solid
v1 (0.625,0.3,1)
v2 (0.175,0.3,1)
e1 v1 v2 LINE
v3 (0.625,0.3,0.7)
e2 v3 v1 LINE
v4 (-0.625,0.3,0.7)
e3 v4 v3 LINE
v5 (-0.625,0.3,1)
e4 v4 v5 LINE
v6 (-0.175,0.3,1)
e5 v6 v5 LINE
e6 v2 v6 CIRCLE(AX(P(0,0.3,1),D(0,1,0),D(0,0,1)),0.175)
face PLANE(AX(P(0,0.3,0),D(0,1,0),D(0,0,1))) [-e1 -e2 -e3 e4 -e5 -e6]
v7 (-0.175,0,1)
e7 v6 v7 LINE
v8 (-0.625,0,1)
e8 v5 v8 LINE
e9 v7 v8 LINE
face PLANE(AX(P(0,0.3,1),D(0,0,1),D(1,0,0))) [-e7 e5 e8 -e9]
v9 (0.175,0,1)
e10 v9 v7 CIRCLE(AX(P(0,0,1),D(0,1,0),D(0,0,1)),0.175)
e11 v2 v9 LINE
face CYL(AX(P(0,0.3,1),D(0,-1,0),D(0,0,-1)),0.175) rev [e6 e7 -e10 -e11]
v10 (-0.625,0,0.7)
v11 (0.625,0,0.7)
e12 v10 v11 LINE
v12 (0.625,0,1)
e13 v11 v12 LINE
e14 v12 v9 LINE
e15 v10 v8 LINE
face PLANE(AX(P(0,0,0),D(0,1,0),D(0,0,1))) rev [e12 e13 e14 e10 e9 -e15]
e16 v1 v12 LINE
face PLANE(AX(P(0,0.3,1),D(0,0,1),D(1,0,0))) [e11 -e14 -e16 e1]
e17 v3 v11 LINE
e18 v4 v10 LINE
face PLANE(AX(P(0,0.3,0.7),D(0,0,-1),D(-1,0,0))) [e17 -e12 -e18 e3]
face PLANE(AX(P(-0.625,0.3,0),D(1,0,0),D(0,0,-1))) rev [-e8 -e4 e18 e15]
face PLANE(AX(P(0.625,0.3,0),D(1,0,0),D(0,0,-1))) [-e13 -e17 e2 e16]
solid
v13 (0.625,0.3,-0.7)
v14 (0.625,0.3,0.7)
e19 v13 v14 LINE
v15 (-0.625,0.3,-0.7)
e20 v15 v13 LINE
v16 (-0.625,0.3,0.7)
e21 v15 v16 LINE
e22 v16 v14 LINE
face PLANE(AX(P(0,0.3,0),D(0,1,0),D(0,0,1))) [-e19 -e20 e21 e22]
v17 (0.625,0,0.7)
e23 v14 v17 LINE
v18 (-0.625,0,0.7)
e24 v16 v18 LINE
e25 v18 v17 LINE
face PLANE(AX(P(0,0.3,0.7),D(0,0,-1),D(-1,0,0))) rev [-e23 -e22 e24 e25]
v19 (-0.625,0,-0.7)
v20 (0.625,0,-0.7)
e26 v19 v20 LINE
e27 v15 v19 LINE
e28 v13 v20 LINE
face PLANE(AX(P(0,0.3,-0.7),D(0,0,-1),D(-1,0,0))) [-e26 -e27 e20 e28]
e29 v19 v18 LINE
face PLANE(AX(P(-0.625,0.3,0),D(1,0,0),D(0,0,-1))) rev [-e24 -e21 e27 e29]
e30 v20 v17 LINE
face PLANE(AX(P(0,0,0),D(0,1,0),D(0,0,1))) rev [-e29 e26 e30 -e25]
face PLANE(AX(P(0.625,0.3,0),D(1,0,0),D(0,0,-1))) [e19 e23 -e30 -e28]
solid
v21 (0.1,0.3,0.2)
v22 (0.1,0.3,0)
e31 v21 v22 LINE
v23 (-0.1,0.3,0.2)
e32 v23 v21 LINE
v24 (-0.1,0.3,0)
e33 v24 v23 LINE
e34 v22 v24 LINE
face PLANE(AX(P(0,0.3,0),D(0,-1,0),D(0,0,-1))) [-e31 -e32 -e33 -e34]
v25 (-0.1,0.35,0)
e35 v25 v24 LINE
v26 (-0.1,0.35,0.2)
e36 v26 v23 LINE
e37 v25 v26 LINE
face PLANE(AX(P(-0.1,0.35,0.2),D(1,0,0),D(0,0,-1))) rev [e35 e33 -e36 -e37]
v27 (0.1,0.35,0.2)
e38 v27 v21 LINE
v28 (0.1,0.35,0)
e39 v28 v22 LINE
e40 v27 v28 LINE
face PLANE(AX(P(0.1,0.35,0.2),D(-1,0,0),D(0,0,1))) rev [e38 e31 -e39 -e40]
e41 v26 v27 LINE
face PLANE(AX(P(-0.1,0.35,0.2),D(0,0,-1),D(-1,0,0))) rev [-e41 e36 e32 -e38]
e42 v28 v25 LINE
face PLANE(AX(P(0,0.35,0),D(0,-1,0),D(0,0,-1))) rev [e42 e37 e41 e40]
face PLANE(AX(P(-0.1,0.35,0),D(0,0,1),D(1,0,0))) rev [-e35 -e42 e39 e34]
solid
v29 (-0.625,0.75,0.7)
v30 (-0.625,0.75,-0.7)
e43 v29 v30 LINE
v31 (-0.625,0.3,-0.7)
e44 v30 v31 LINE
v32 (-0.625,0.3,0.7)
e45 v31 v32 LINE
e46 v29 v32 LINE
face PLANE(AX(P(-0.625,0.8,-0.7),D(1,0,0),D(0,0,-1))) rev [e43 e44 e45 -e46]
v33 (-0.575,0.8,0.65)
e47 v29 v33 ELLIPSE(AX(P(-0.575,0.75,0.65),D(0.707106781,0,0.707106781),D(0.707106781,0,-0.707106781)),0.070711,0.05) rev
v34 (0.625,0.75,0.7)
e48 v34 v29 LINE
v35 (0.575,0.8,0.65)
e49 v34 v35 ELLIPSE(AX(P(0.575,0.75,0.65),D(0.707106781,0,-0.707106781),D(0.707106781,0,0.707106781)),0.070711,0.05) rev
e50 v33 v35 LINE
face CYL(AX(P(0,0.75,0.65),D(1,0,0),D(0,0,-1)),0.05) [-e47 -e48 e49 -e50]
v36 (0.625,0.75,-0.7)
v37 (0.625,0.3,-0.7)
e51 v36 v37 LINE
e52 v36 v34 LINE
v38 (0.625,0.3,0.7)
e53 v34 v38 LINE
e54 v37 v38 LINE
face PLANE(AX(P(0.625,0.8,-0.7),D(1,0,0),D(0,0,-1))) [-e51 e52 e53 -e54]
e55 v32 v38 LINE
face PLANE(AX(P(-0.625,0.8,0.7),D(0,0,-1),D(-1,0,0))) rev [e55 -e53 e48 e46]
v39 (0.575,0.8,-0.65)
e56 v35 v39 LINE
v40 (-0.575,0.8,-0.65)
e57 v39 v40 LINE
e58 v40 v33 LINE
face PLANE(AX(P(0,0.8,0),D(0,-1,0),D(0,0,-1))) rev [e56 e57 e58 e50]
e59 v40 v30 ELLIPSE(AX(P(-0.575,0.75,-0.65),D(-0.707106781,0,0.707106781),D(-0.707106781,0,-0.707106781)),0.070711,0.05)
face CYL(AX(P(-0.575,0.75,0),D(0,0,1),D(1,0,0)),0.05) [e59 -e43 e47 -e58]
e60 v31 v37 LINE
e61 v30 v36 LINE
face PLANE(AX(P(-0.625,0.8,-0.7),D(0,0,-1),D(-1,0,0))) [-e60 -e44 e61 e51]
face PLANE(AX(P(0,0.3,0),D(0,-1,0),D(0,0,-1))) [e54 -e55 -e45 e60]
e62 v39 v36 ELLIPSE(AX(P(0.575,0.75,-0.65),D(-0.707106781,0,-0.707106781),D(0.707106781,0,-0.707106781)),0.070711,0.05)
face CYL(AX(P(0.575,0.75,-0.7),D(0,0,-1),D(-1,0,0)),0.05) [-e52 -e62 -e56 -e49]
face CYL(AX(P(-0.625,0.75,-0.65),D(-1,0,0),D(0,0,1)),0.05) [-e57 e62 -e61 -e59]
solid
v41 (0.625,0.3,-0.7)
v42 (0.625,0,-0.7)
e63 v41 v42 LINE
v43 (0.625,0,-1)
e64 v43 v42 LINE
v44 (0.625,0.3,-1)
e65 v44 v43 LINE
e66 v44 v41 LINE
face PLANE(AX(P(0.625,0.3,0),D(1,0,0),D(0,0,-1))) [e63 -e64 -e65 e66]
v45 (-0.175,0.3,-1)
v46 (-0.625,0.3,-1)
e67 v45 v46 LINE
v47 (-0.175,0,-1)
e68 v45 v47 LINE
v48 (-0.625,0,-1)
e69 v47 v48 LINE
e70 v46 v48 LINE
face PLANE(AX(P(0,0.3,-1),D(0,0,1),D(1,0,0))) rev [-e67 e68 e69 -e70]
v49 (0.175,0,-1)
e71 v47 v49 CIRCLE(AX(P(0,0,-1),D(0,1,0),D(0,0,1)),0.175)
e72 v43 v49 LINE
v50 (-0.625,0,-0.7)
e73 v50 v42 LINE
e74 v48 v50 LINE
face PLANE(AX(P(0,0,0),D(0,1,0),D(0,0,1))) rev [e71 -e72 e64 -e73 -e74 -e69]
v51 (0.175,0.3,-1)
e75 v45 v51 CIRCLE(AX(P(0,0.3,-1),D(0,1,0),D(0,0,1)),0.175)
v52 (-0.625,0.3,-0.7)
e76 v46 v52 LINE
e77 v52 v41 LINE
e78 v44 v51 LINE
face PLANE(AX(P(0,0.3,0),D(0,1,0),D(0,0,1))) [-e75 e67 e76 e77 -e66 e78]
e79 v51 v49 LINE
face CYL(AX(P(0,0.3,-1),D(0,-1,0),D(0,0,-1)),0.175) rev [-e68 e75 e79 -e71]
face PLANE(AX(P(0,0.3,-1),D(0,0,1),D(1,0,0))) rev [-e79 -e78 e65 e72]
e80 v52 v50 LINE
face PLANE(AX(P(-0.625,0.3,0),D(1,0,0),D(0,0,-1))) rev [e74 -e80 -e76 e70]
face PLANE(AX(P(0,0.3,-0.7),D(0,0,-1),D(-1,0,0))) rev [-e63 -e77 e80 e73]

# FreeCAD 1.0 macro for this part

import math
import FreeCAD as App
import Part
import Sketcher

V = App.Vector


def edges_at(feature, points):
    """Names of the edges that pass closest to the given points."""
    edges = feature.Shape.Edges
    near = lambda p: min(range(len(edges)), key=lambda i: edges[i].distToShape(Part.Vertex(*p))[0])
    return sorted({f"Edge{near(p) + 1}" for p in points})

doc = App.newDocument("Part")
body = doc.addObject("PartDesign::Body", "Body")

# Sketch on XZ plane
sketch1 = doc.addObject("Sketcher::SketchObject", "Sketch")
body.addObject(sketch1)
sketch1.AttachmentSupport = (doc.XZ_Plane, [""])
sketch1.MapMode = "FlatFace"
sketch1.addGeometry([
    Part.LineSegment(V(-0.625, -1, 0), V(-0.625, -0.7, 0)),  # 0
    Part.LineSegment(V(-0.625, -0.7, 0), V(0.625, -0.7, 0)),  # 1
    Part.LineSegment(V(0.625, -0.7, 0), V(0.625, -1, 0)),  # 2
    Part.LineSegment(V(0.625, -1, 0), V(0.175, -1, 0)),  # 3
    Part.ArcOfCircle(Part.Circle(V(0, -1, 0), V(0, 0, 1), 0.175), math.radians(0), math.radians(180)),  # 4
    Part.LineSegment(V(-0.175, -1, 0), V(-0.625, -1, 0)),  # 5
], False)
sketch1.addConstraint([
    Sketcher.Constraint("Coincident", 0, 2, 1, 1),
    Sketcher.Constraint("Coincident", 1, 2, 2, 1),
    Sketcher.Constraint("Coincident", 2, 2, 3, 1),
    Sketcher.Constraint("Coincident", 3, 2, 4, 1),
    Sketcher.Constraint("Coincident", 4, 2, 5, 1),
    Sketcher.Constraint("Coincident", 5, 2, 0, 1),
    Sketcher.Constraint("Vertical", 0),
    Sketcher.Constraint("Horizontal", 1),
    Sketcher.Constraint("Vertical", 2),
    Sketcher.Constraint("Horizontal", 3),
    Sketcher.Constraint("Horizontal", 5),
    Sketcher.Constraint("Symmetric", 3, 2, 4, 2, -2),
    Sketcher.Constraint("Horizontal", 4, 3, 2, 2),
    Sketcher.Constraint("Equal", 3, 5),
    Sketcher.Constraint("DistanceY", 0, 1, 0, 2, 0.3),
    Sketcher.Constraint("DistanceY", 4, 3, -1, 1, 1.0),
    Sketcher.Constraint("Radius", 4, 0.175),
    Sketcher.Constraint("DistanceX", 1, 1, 1, 2, 1.25),
])
pad1 = doc.addObject("PartDesign::Pad", "Pad")
body.addObject(pad1)
pad1.Profile = sketch1
pad1.Length = 0.3
pad1.Reversed = True
body2 = doc.addObject("PartDesign::Body", "Body001")

# Sketch on XZ plane
sketch2 = doc.addObject("Sketcher::SketchObject", "Sketch001")
body2.addObject(sketch2)
sketch2.AttachmentSupport = (doc.getObject("XZ_Plane001"), [""])
sketch2.MapMode = "FlatFace"
sketch2.addGeometry([
    Part.LineSegment(V(0.625, 0.7, 0), V(-0.625, 0.7, 0)),  # 0
    Part.LineSegment(V(-0.625, 0.7, 0), V(-0.625, 1, 0)),  # 1
    Part.LineSegment(V(-0.625, 1, 0), V(-0.175, 1, 0)),  # 2
    Part.ArcOfCircle(Part.Circle(V(0, 1, 0), V(0, 0, 1), 0.175), math.radians(180), math.radians(360)),  # 3
    Part.LineSegment(V(0.175, 1, 0), V(0.625, 1, 0)),  # 4
    Part.LineSegment(V(0.625, 1, 0), V(0.625, 0.7, 0)),  # 5
], False)
sketch2.addConstraint([
    Sketcher.Constraint("Coincident", 0, 2, 1, 1),
    Sketcher.Constraint("Coincident", 1, 2, 2, 1),
    Sketcher.Constraint("Coincident", 2, 2, 3, 1),
    Sketcher.Constraint("Coincident", 3, 2, 4, 1),
    Sketcher.Constraint("Coincident", 4, 2, 5, 1),
    Sketcher.Constraint("Coincident", 5, 2, 0, 1),
    Sketcher.Constraint("Horizontal", 0),
    Sketcher.Constraint("Vertical", 1),
    Sketcher.Constraint("Horizontal", 2),
    Sketcher.Constraint("Horizontal", 4),
    Sketcher.Constraint("Vertical", 5),
    Sketcher.Constraint("Symmetric", 2, 2, 3, 2, -2),
    Sketcher.Constraint("Horizontal", 3, 3, 1, 2),
    Sketcher.Constraint("Equal", 2, 4),
    Sketcher.Constraint("DistanceY", 1, 1, 1, 2, 0.3),
    Sketcher.Constraint("DistanceY", -1, 1, 3, 3, 1.0),
    Sketcher.Constraint("Radius", 3, 0.175),
    Sketcher.Constraint("DistanceX", 0, 2, 0, 1, 1.25),
])
pad2 = doc.addObject("PartDesign::Pad", "Pad001")
body2.addObject(pad2)
pad2.Profile = sketch2
pad2.Length = 0.3
pad2.Reversed = True
body3 = doc.addObject("PartDesign::Body", "Body002")

# Sketch on XZ plane
sketch3 = doc.addObject("Sketcher::SketchObject", "Sketch002")
body3.addObject(sketch3)
sketch3.AttachmentSupport = (doc.getObject("XZ_Plane002"), [""])
sketch3.MapMode = "FlatFace"
sketch3.addGeometry([
    Part.LineSegment(V(-0.625, -0.7, 0), V(-0.625, 0.7, 0)),
    Part.LineSegment(V(-0.625, 0.7, 0), V(0.625, 0.7, 0)),
    Part.LineSegment(V(0.625, 0.7, 0), V(0.625, -0.7, 0)),
    Part.LineSegment(V(0.625, -0.7, 0), V(-0.625, -0.7, 0)),
], False)
sketch3.addConstraint([
    Sketcher.Constraint("Coincident", 0, 2, 1, 1),
    Sketcher.Constraint("Coincident", 1, 2, 2, 1),
    Sketcher.Constraint("Coincident", 2, 2, 3, 1),
    Sketcher.Constraint("Coincident", 3, 2, 0, 1),
    Sketcher.Constraint("Vertical", 0),
    Sketcher.Constraint("Horizontal", 1),
    Sketcher.Constraint("Vertical", 2),
    Sketcher.Constraint("Horizontal", 3),
    Sketcher.Constraint("Symmetric", 0, 2, 2, 2, -1, 1),
    Sketcher.Constraint("DistanceY", 0, 1, 0, 2, 1.4),
    Sketcher.Constraint("DistanceX", 1, 1, 1, 2, 1.25),
])
pad3 = doc.addObject("PartDesign::Pad", "Pad002")
body3.addObject(pad3)
pad3.Profile = sketch3
pad3.Length = 0.3
pad3.Reversed = True
body4 = doc.addObject("PartDesign::Body", "Body003")

# Sketch on XZ plane
sketch4 = doc.addObject("Sketcher::SketchObject", "Sketch003")
body4.addObject(sketch4)
sketch4.AttachmentSupport = (doc.getObject("XZ_Plane003"), [""])
sketch4.MapMode = "FlatFace"
sketch4.AttachmentOffset = App.Placement(V(0, 0, -0.3), App.Rotation())
sketch4.addGeometry([
    Part.LineSegment(V(-0.625, -0.7, 0), V(-0.625, 0.7, 0)),
    Part.LineSegment(V(-0.625, 0.7, 0), V(0.625, 0.7, 0)),
    Part.LineSegment(V(0.625, 0.7, 0), V(0.625, -0.7, 0)),
    Part.LineSegment(V(0.625, -0.7, 0), V(-0.625, -0.7, 0)),
], False)
sketch4.addConstraint([
    Sketcher.Constraint("Coincident", 0, 2, 1, 1),
    Sketcher.Constraint("Coincident", 1, 2, 2, 1),
    Sketcher.Constraint("Coincident", 2, 2, 3, 1),
    Sketcher.Constraint("Coincident", 3, 2, 0, 1),
    Sketcher.Constraint("Vertical", 0),
    Sketcher.Constraint("Horizontal", 1),
    Sketcher.Constraint("Vertical", 2),
    Sketcher.Constraint("Horizontal", 3),
    Sketcher.Constraint("Symmetric", 0, 2, 2, 2, -1, 1),
    Sketcher.Constraint("DistanceY", 0, 1, 0, 2, 1.4),
    Sketcher.Constraint("DistanceX", 1, 1, 1, 2, 1.25),
])
pad4 = doc.addObject("PartDesign::Pad", "Pad003")
body4.addObject(pad4)
pad4.Profile = sketch4
pad4.Length = 0.5
pad4.Reversed = True
doc.recompute()

fillet = doc.addObject("PartDesign::Fillet", "Fillet")
body4.addObject(fillet)
fillet.Base = (pad4, edges_at(pad4, [
    (0, 0.8, -0.7),
    (-0.625, 0.8, 0),
    (0, 0.8, 0.7),
    (0.625, 0.8, 0),
]))
fillet.Radius = 0.05
body5 = doc.addObject("PartDesign::Body", "Body004")

# Sketch on XZ plane
sketch5 = doc.addObject("Sketcher::SketchObject", "Sketch004")
body5.addObject(sketch5)
sketch5.AttachmentSupport = (doc.getObject("XZ_Plane004"), [""])
sketch5.MapMode = "FlatFace"
sketch5.AttachmentOffset = App.Placement(V(0, 0, -0.3), App.Rotation())
sketch5.addGeometry([
    Part.LineSegment(V(-0.1, 0, 0), V(-0.1, 0.2, 0)),
    Part.LineSegment(V(-0.1, 0.2, 0), V(0.1, 0.2, 0)),
    Part.LineSegment(V(0.1, 0.2, 0), V(0.1, 0, 0)),
    Part.LineSegment(V(0.1, 0, 0), V(-0.1, 0, 0)),
], False)
sketch5.addConstraint([
    Sketcher.Constraint("Coincident", 0, 2, 1, 1),
    Sketcher.Constraint("Coincident", 1, 2, 2, 1),
    Sketcher.Constraint("Coincident", 2, 2, 3, 1),
    Sketcher.Constraint("Coincident", 3, 2, 0, 1),
    Sketcher.Constraint("Vertical", 0),
    Sketcher.Constraint("Horizontal", 1),
    Sketcher.Constraint("Vertical", 2),
    Sketcher.Constraint("Horizontal", 3),
    Sketcher.Constraint("Symmetric", 2, 2, 3, 2, -1, 1),
    Sketcher.Constraint("Equal", 3, 0),
    Sketcher.Constraint("DistanceX", 1, 1, 1, 2, 0.2),
])
pad5 = doc.addObject("PartDesign::Pad", "Pad004")
body5.addObject(pad5)
pad5.Profile = sketch5
pad5.Length = 0.05
pad5.Reversed = True

doc.recompute()
